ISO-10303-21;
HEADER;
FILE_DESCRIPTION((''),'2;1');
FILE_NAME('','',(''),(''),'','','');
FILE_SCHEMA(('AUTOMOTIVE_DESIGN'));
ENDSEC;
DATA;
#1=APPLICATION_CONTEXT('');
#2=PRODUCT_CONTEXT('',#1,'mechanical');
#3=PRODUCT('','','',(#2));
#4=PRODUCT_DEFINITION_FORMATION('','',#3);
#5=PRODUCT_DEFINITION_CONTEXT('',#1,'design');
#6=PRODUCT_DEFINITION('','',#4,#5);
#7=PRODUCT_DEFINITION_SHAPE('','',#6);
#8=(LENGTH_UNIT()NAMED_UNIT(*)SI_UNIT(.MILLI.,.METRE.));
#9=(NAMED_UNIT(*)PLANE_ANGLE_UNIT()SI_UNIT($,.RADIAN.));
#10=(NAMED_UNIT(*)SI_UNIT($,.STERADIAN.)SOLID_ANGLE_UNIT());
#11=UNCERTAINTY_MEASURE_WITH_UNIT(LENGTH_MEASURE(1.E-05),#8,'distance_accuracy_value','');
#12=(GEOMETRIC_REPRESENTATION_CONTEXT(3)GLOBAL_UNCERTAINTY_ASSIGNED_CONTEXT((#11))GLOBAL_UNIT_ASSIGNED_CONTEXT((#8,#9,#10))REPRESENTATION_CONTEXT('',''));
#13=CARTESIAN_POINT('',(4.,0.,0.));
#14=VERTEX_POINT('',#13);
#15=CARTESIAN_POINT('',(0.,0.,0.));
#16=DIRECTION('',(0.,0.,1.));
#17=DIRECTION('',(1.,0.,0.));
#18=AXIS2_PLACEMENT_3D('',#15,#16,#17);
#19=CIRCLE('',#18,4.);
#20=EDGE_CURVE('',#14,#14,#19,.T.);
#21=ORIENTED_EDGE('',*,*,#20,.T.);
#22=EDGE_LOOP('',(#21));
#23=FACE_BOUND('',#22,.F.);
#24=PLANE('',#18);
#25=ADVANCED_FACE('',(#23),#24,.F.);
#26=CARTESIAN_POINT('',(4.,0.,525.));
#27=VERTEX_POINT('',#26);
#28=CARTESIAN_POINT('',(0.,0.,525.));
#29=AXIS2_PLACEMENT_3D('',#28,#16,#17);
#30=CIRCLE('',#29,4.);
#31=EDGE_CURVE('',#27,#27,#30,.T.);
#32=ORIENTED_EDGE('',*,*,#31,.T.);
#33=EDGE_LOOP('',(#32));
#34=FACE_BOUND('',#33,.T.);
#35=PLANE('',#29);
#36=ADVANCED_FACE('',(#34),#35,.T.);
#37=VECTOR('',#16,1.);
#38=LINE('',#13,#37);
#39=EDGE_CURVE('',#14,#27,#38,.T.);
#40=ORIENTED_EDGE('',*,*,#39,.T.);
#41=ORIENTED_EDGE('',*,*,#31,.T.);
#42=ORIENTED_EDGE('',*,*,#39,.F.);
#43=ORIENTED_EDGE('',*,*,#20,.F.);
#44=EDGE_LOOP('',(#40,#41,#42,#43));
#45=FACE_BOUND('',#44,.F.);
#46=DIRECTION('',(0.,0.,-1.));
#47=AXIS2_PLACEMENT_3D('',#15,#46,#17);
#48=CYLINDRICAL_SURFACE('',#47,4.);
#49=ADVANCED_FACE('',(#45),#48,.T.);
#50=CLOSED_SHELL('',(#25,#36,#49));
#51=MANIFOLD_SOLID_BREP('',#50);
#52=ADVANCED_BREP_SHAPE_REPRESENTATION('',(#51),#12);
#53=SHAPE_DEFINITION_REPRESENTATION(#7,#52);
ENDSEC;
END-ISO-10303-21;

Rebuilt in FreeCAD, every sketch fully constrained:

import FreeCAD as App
import Part
import Sketcher
from FreeCAD import Vector
Q = App.Units.Quantity

doc = App.newDocument("Part")
body = doc.addObject("PartDesign::Body", "Body")

sketch1 = body.newObject("Sketcher::SketchObject", "Sketch")
sketch1.AttachmentSupport = (doc.getObject("XY_Plane"), [""])
sketch1.MapMode = "FlatFace"
sketch1.addGeometry(Part.Circle(Vector(0, 0, 0), Vector(0, 0, 1), 4), False)
sketch1.addConstraint(Sketcher.Constraint("Coincident", 0, 3, -1, 1))
sketch1.addConstraint(Sketcher.Constraint("Diameter", 0, Q("8 mm")))
pad1 = body.newObject("PartDesign::Pad", "Pad")
pad1.Profile = sketch1
pad1.Length = 525

doc.recompute()
